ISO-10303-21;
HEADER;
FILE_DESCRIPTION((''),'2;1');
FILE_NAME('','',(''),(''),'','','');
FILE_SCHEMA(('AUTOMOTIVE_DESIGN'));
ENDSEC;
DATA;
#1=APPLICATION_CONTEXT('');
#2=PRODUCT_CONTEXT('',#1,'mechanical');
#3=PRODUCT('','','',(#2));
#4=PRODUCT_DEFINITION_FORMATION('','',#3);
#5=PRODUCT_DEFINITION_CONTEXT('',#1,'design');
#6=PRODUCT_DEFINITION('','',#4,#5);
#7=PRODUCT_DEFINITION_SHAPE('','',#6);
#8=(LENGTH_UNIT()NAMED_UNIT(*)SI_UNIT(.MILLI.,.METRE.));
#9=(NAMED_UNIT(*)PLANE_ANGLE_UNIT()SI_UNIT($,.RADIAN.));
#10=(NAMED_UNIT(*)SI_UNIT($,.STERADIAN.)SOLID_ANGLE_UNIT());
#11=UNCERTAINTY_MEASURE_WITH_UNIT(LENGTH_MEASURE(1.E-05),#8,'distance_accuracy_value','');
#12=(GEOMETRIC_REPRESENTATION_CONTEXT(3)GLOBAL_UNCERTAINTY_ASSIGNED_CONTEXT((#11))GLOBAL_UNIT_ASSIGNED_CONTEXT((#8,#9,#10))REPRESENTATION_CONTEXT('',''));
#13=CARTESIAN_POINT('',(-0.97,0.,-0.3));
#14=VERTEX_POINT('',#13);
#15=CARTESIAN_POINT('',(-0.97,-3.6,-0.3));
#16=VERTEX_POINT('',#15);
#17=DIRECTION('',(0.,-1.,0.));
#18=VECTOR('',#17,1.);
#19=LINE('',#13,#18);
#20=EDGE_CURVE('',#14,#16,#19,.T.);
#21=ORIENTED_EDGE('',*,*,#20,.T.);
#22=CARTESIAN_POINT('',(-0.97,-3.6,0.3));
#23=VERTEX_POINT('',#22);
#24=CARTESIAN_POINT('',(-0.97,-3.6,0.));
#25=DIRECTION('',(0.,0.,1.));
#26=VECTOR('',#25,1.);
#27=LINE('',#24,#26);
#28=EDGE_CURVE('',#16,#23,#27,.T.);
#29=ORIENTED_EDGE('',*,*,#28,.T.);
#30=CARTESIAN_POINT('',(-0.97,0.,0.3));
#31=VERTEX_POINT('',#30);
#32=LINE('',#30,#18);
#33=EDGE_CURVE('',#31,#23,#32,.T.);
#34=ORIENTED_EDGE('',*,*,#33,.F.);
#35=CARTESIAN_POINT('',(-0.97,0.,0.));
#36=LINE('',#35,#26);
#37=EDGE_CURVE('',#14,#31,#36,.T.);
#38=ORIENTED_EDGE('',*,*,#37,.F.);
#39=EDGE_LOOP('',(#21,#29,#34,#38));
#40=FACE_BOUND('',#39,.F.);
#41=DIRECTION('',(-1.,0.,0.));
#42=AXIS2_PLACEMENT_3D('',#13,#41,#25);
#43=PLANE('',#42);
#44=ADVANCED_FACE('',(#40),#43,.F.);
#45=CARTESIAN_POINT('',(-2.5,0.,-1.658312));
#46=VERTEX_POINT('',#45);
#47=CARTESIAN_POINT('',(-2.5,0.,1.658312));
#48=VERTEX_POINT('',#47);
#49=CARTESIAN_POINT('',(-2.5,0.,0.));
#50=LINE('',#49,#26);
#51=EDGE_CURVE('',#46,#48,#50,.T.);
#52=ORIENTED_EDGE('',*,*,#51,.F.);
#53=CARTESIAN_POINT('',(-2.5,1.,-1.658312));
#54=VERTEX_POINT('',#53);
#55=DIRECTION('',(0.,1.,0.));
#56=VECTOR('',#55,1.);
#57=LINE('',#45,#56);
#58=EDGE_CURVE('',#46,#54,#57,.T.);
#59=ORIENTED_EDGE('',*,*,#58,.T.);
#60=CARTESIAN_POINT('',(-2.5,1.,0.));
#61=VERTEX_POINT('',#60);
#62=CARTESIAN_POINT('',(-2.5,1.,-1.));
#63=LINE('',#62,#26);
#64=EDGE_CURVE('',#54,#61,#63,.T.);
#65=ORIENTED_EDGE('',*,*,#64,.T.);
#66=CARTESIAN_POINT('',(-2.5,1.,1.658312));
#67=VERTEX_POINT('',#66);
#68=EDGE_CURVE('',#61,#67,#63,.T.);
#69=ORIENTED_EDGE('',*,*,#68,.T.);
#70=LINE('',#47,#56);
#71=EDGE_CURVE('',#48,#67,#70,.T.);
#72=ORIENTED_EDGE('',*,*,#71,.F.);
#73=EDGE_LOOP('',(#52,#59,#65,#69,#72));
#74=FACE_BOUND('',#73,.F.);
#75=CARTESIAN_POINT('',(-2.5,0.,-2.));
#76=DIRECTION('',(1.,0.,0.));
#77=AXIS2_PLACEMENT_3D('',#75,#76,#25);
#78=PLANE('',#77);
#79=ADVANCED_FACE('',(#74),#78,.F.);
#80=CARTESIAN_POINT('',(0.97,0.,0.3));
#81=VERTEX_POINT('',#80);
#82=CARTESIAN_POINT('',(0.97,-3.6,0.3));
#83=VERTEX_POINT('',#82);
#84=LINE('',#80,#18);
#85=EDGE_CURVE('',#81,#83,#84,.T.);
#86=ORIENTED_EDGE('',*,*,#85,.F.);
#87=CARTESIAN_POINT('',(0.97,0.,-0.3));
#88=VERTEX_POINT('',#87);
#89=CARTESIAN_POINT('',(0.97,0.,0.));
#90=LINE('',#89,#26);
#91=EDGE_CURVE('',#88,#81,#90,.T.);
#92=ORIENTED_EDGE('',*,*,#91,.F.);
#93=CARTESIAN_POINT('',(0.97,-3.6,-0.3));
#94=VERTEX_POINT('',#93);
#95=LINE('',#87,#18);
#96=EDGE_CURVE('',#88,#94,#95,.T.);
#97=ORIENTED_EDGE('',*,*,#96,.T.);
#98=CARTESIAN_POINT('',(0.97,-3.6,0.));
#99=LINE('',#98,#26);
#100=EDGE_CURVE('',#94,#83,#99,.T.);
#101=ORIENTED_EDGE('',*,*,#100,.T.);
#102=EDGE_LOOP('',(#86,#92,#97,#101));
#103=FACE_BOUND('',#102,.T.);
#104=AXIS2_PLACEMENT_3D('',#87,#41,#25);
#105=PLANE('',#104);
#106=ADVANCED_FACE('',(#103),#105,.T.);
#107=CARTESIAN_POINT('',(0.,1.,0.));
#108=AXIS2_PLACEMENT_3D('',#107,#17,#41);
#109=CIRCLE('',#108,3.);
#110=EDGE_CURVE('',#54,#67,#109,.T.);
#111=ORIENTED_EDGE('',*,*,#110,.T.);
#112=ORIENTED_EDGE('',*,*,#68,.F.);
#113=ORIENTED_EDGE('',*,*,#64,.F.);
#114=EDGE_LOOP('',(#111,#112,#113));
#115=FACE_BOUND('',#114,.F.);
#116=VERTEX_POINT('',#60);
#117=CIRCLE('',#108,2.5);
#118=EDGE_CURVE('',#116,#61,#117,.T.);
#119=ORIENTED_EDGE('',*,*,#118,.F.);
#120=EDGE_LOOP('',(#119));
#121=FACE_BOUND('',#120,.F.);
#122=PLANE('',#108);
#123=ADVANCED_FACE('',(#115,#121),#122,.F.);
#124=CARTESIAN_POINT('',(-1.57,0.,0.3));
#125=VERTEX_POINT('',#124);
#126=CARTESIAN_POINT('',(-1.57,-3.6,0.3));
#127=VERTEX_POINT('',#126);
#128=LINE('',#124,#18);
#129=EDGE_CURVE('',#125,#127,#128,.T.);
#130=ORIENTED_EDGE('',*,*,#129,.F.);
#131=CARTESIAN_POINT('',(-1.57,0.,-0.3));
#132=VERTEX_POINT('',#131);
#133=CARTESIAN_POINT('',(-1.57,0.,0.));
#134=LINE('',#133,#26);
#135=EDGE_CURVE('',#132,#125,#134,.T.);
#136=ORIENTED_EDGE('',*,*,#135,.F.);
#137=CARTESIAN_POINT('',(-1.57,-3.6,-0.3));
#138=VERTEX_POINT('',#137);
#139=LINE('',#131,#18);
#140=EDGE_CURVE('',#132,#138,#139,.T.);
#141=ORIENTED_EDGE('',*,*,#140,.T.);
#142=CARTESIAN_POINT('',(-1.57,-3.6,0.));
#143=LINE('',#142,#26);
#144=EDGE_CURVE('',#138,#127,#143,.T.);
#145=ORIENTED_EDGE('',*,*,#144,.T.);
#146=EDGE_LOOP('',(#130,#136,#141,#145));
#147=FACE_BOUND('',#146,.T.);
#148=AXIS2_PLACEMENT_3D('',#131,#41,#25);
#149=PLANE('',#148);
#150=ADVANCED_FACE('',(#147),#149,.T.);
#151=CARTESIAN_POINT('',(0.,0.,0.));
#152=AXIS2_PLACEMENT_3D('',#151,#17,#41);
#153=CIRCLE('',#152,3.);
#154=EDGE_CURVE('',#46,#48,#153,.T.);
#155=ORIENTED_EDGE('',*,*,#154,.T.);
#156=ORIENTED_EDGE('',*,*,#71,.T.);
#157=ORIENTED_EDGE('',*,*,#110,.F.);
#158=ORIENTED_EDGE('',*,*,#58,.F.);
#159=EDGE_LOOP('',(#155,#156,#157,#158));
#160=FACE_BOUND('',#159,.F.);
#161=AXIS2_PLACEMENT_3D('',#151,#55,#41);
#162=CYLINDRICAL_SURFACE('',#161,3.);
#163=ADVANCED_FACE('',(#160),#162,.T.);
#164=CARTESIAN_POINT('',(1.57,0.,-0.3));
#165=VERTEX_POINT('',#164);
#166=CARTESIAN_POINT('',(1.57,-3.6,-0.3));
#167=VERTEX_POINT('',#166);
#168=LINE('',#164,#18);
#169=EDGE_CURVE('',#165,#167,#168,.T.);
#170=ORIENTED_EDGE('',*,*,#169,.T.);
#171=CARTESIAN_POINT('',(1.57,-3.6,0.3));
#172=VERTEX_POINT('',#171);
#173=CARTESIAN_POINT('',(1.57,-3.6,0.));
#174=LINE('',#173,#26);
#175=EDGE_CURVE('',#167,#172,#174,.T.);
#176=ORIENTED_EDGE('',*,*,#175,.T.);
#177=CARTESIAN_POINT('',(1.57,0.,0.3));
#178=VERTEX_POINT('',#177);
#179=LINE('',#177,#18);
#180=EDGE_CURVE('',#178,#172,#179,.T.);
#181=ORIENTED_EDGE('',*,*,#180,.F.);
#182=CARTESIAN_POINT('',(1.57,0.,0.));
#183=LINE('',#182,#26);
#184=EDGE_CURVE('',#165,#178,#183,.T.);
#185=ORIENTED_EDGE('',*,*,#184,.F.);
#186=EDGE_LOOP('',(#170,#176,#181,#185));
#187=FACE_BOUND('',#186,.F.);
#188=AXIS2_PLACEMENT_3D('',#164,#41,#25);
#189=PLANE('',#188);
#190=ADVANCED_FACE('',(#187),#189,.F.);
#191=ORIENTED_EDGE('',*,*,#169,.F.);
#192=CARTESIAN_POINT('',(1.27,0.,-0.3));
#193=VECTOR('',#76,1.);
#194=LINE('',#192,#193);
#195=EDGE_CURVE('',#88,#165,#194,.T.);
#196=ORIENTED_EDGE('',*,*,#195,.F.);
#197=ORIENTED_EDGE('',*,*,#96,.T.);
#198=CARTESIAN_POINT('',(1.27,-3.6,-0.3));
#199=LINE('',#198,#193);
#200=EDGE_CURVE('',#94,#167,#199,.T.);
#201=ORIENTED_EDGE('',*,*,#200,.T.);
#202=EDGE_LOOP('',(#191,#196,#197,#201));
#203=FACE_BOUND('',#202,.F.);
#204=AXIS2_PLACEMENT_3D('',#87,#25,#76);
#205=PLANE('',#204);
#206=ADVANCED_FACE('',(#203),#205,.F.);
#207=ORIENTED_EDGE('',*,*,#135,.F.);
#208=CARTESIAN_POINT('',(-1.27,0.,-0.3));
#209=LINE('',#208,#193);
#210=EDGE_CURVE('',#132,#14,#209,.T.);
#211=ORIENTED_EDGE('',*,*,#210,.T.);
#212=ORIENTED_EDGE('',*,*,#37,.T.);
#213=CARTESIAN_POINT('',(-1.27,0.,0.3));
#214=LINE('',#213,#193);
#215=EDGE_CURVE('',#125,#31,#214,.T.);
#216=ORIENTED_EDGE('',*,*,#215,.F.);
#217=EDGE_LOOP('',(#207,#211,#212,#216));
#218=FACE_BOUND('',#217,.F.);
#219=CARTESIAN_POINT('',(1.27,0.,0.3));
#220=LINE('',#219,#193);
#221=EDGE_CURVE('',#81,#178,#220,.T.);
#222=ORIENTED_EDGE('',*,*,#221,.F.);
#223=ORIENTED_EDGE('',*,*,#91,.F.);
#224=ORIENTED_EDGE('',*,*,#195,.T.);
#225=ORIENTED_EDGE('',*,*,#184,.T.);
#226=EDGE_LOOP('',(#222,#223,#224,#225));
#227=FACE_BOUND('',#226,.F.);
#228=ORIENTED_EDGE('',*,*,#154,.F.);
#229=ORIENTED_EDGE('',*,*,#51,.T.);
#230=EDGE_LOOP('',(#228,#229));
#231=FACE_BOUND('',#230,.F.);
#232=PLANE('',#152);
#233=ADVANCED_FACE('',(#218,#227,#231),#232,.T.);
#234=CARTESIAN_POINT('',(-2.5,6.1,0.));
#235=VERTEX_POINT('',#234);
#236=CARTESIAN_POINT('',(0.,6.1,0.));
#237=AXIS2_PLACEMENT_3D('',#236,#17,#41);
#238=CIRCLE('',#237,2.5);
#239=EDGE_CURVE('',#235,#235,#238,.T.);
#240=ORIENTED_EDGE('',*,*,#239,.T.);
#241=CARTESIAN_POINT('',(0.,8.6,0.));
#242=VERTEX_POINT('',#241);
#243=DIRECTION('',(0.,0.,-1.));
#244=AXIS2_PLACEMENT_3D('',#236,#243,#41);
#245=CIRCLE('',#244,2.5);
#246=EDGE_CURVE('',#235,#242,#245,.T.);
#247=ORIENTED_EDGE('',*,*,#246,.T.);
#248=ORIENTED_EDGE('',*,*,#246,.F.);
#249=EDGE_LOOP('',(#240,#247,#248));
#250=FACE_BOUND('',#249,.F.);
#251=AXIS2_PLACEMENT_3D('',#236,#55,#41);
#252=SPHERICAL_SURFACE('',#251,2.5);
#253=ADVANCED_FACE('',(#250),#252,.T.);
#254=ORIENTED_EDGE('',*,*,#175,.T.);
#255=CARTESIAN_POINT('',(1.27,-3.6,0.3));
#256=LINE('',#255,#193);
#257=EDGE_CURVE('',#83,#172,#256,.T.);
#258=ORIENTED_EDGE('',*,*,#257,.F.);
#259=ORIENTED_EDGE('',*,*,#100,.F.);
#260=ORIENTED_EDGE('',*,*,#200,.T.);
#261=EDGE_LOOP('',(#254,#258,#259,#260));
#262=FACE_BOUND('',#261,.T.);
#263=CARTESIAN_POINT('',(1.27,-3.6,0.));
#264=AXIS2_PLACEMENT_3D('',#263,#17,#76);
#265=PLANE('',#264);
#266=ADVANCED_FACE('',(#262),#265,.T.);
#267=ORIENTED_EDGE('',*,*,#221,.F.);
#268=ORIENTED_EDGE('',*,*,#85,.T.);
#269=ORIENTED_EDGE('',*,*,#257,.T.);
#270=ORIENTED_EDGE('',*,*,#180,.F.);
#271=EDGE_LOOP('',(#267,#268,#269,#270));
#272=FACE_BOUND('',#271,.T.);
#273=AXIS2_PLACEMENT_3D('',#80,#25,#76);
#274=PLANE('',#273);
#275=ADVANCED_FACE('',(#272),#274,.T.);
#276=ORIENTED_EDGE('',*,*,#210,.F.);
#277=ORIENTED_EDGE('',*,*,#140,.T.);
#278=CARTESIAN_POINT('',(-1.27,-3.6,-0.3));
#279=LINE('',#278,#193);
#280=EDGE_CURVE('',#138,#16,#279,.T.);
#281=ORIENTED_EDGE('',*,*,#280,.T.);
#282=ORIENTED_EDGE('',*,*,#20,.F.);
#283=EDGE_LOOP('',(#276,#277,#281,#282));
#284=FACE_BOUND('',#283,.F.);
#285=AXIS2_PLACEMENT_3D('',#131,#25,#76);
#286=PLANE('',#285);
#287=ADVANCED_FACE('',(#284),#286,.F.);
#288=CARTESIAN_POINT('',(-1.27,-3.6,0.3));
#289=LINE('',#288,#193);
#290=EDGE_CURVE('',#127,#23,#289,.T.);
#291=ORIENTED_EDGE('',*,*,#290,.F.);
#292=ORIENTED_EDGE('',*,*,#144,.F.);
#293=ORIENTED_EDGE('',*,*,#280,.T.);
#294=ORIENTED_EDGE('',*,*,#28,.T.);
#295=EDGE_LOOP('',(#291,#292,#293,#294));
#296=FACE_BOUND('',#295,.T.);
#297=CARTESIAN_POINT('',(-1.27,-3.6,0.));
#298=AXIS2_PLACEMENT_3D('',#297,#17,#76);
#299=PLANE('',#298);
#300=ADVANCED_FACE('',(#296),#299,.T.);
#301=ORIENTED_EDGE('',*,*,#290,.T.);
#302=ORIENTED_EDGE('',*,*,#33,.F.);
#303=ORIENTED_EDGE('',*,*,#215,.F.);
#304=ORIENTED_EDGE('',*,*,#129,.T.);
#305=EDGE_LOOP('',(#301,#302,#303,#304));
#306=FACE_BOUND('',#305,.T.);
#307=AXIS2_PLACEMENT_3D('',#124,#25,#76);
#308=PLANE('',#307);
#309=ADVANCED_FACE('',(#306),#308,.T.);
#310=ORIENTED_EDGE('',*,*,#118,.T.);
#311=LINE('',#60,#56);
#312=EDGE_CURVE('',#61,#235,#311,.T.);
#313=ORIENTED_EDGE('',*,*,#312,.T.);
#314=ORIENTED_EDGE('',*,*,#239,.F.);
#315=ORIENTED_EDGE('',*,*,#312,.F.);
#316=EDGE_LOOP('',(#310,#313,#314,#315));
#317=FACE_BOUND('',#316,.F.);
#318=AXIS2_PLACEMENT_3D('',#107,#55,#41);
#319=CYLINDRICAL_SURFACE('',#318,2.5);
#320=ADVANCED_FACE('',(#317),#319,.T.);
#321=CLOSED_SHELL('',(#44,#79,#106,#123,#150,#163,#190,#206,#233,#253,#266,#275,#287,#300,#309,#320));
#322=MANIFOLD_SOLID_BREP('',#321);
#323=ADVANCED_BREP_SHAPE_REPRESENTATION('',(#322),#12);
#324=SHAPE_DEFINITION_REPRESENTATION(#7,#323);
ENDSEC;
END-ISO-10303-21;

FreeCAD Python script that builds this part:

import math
import FreeCAD as App
import Part
import Sketcher

V = App.Vector
Q = App.Units.Quantity

doc = App.newDocument("Part")
body = doc.addObject("PartDesign::Body", "Body")

sketch1 = body.newObject("Sketcher::SketchObject", "Sketch")
sketch1.AttachmentSupport = (doc.getObject("XY_Plane"), [""])
sketch1.MapMode = "FlatFace"
sketch1.addGeometry(Part.LineSegment(V(-3, 0, 0), V(0, 0, 0)), False)
sketch1.addGeometry(Part.LineSegment(V(0, 0, 0), V(0, 8.6, 0)), False)
sketch1.addGeometry(Part.ArcOfCircle(Part.Circle(V(0, 6.1, 0), V(0, 0, 1), 2.5), math.radians(90), math.radians(180)), False)
sketch1.addGeometry(Part.LineSegment(V(-2.5, 6.1, 0), V(-2.5, 1, 0)), False)
sketch1.addGeometry(Part.LineSegment(V(-2.5, 1, 0), V(-3, 1, 0)), False)
sketch1.addGeometry(Part.LineSegment(V(-3, 1, 0), V(-3, 0, 0)), False)
sketch1.addConstraint(Sketcher.Constraint("Coincident", 0, 2, 1, 1))
sketch1.addConstraint(Sketcher.Constraint("Coincident", 1, 2, 2, 1))
sketch1.addConstraint(Sketcher.Constraint("Tangent", 2, 2, 3, 1))
sketch1.addConstraint(Sketcher.Constraint("Coincident", 3, 2, 4, 1))
sketch1.addConstraint(Sketcher.Constraint("Coincident", 4, 2, 5, 1))
sketch1.addConstraint(Sketcher.Constraint("Coincident", 5, 2, 0, 1))
sketch1.addConstraint(Sketcher.Constraint("Horizontal", 0))
sketch1.addConstraint(Sketcher.Constraint("Vertical", 1))
sketch1.addConstraint(Sketcher.Constraint("Vertical", 3))
sketch1.addConstraint(Sketcher.Constraint("Horizontal", 4))
sketch1.addConstraint(Sketcher.Constraint("Vertical", 5))
sketch1.addConstraint(Sketcher.Constraint("Coincident", 0, 2, -1, 1))
sketch1.addConstraint(Sketcher.Constraint("PointOnObject", 2, 3, -2))
sketch1.addConstraint(Sketcher.Constraint("Radius", 2, Q("2.5 mm")))
sketch1.addConstraint(Sketcher.Constraint("DistanceX", 0, 1, 0, 2, Q("3 mm")))
sketch1.addConstraint(Sketcher.Constraint("DistanceY", 5, 2, 5, 1, Q("1 mm")))
sketch1.addConstraint(Sketcher.Constraint("DistanceY", 1, 1, 1, 2, Q("8.6 mm")))
revolution = body.newObject("PartDesign::Revolution", "Revolution")
revolution.Profile = sketch1
revolution.ReferenceAxis = (sketch1, ["V_Axis"])
revolution.Angle = 360

sketch2 = body.newObject("Sketcher::SketchObject", "Sketch001")
sketch2.AttachmentSupport = (doc.getObject("XZ_Plane"), [""])
sketch2.MapMode = "FlatFace"
sketch2.addGeometry(Part.LineSegment(V(-1.6, 0.3, 0), V(-1.6, -0.3, 0)), False)
sketch2.addGeometry(Part.LineSegment(V(-1.6, -0.3, 0), V(-1, -0.3, 0)), False)
sketch2.addGeometry(Part.LineSegment(V(-1, -0.3, 0), V(-1, 0.3, 0)), False)
sketch2.addGeometry(Part.LineSegment(V(-1, 0.3, 0), V(-1.6, 0.3, 0)), False)
sketch2.addGeometry(Part.LineSegment(V(1, 0.3, 0), V(1, -0.3, 0)), False)
sketch2.addGeometry(Part.LineSegment(V(1, -0.3, 0), V(1.6, -0.3, 0)), False)
sketch2.addGeometry(Part.LineSegment(V(1.6, -0.3, 0), V(1.6, 0.3, 0)), False)
sketch2.addGeometry(Part.LineSegment(V(1.6, 0.3, 0), V(1, 0.3, 0)), False)
sketch2.addConstraint(Sketcher.Constraint("Coincident", 0, 2, 1, 1))
sketch2.addConstraint(Sketcher.Constraint("Coincident", 1, 2, 2, 1))
sketch2.addConstraint(Sketcher.Constraint("Coincident", 2, 2, 3, 1))
sketch2.addConstraint(Sketcher.Constraint("Coincident", 3, 2, 0, 1))
sketch2.addConstraint(Sketcher.Constraint("Coincident", 4, 2, 5, 1))
sketch2.addConstraint(Sketcher.Constraint("Coincident", 5, 2, 6, 1))
sketch2.addConstraint(Sketcher.Constraint("Coincident", 6, 2, 7, 1))
sketch2.addConstraint(Sketcher.Constraint("Coincident", 7, 2, 4, 1))
sketch2.addConstraint(Sketcher.Constraint("Vertical", 0))
sketch2.addConstraint(Sketcher.Constraint("Horizontal", 1))
sketch2.addConstraint(Sketcher.Constraint("Vertical", 2))
sketch2.addConstraint(Sketcher.Constraint("Horizontal", 3))
sketch2.addConstraint(Sketcher.Constraint("Vertical", 4))
sketch2.addConstraint(Sketcher.Constraint("Horizontal", 5))
sketch2.addConstraint(Sketcher.Constraint("Vertical", 6))
sketch2.addConstraint(Sketcher.Constraint("Horizontal", 7))
sketch2.addConstraint(Sketcher.Constraint("Symmetric", 2, 2, 4, 2, -1, 1))
sketch2.addConstraint(Sketcher.Constraint("Symmetric", 0, 2, 6, 2, -1, 1))
sketch2.addConstraint(Sketcher.Constraint("Horizontal", 1, 2, 4, 2))
sketch2.addConstraint(Sketcher.Constraint("Equal", 7, 0))
sketch2.addConstraint(Sketcher.Constraint("DistanceX", 1, 1, 1, 2, Q("0.6 mm")))
sketch2.addConstraint(Sketcher.Constraint("DistanceX", 0, 2, -1, 1, Q("1.57 mm")))
pad1 = body.newObject("PartDesign::Pad", "Pad")
pad1.Profile = sketch2
pad1.Length = 3.6

sketch3 = body.newObject("Sketcher::SketchObject", "Sketch002")
sketch3.AttachmentSupport = (doc.getObject("XZ_Plane"), [""])
sketch3.MapMode = "FlatFace"
sketch3.addGeometry(Part.LineSegment(V(-3.5, 2, 0), V(-3.5, -2, 0)), False)
sketch3.addGeometry(Part.LineSegment(V(-3.5, -2, 0), V(-2.5, -2, 0)), False)
sketch3.addGeometry(Part.LineSegment(V(-2.5, -2, 0), V(-2.5, 2, 0)), False)
sketch3.addGeometry(Part.LineSegment(V(-2.5, 2, 0), V(-3.5, 2, 0)), False)
sketch3.addConstraint(Sketcher.Constraint("Coincident", 0, 2, 1, 1))
sketch3.addConstraint(Sketcher.Constraint("Coincident", 1, 2, 2, 1))
sketch3.addConstraint(Sketcher.Constraint("Coincident", 2, 2, 3, 1))
sketch3.addConstraint(Sketcher.Constraint("Coincident", 3, 2, 0, 1))
sketch3.addConstraint(Sketcher.Constraint("Vertical", 0))
sketch3.addConstraint(Sketcher.Constraint("Horizontal", 1))
sketch3.addConstraint(Sketcher.Constraint("Vertical", 2))
sketch3.addConstraint(Sketcher.Constraint("Horizontal", 3))
sketch3.addConstraint(Sketcher.Constraint("DistanceX", 1, 1, 1, 2, Q("1 mm")))
sketch3.addConstraint(Sketcher.Constraint("DistanceY", 0, 2, 0, 1, Q("4 mm")))
sketch3.addConstraint(Sketcher.Constraint("DistanceY", 0, 2, -1, 1, Q("2 mm")))
sketch3.addConstraint(Sketcher.Constraint("DistanceX", 0, 2, -1, 1, Q("3.5 mm")))
pocket1 = body.newObject("PartDesign::Pocket", "Pocket")
pocket1.Profile = sketch3
pocket1.Type = "ThroughAll"

doc.recompute()
